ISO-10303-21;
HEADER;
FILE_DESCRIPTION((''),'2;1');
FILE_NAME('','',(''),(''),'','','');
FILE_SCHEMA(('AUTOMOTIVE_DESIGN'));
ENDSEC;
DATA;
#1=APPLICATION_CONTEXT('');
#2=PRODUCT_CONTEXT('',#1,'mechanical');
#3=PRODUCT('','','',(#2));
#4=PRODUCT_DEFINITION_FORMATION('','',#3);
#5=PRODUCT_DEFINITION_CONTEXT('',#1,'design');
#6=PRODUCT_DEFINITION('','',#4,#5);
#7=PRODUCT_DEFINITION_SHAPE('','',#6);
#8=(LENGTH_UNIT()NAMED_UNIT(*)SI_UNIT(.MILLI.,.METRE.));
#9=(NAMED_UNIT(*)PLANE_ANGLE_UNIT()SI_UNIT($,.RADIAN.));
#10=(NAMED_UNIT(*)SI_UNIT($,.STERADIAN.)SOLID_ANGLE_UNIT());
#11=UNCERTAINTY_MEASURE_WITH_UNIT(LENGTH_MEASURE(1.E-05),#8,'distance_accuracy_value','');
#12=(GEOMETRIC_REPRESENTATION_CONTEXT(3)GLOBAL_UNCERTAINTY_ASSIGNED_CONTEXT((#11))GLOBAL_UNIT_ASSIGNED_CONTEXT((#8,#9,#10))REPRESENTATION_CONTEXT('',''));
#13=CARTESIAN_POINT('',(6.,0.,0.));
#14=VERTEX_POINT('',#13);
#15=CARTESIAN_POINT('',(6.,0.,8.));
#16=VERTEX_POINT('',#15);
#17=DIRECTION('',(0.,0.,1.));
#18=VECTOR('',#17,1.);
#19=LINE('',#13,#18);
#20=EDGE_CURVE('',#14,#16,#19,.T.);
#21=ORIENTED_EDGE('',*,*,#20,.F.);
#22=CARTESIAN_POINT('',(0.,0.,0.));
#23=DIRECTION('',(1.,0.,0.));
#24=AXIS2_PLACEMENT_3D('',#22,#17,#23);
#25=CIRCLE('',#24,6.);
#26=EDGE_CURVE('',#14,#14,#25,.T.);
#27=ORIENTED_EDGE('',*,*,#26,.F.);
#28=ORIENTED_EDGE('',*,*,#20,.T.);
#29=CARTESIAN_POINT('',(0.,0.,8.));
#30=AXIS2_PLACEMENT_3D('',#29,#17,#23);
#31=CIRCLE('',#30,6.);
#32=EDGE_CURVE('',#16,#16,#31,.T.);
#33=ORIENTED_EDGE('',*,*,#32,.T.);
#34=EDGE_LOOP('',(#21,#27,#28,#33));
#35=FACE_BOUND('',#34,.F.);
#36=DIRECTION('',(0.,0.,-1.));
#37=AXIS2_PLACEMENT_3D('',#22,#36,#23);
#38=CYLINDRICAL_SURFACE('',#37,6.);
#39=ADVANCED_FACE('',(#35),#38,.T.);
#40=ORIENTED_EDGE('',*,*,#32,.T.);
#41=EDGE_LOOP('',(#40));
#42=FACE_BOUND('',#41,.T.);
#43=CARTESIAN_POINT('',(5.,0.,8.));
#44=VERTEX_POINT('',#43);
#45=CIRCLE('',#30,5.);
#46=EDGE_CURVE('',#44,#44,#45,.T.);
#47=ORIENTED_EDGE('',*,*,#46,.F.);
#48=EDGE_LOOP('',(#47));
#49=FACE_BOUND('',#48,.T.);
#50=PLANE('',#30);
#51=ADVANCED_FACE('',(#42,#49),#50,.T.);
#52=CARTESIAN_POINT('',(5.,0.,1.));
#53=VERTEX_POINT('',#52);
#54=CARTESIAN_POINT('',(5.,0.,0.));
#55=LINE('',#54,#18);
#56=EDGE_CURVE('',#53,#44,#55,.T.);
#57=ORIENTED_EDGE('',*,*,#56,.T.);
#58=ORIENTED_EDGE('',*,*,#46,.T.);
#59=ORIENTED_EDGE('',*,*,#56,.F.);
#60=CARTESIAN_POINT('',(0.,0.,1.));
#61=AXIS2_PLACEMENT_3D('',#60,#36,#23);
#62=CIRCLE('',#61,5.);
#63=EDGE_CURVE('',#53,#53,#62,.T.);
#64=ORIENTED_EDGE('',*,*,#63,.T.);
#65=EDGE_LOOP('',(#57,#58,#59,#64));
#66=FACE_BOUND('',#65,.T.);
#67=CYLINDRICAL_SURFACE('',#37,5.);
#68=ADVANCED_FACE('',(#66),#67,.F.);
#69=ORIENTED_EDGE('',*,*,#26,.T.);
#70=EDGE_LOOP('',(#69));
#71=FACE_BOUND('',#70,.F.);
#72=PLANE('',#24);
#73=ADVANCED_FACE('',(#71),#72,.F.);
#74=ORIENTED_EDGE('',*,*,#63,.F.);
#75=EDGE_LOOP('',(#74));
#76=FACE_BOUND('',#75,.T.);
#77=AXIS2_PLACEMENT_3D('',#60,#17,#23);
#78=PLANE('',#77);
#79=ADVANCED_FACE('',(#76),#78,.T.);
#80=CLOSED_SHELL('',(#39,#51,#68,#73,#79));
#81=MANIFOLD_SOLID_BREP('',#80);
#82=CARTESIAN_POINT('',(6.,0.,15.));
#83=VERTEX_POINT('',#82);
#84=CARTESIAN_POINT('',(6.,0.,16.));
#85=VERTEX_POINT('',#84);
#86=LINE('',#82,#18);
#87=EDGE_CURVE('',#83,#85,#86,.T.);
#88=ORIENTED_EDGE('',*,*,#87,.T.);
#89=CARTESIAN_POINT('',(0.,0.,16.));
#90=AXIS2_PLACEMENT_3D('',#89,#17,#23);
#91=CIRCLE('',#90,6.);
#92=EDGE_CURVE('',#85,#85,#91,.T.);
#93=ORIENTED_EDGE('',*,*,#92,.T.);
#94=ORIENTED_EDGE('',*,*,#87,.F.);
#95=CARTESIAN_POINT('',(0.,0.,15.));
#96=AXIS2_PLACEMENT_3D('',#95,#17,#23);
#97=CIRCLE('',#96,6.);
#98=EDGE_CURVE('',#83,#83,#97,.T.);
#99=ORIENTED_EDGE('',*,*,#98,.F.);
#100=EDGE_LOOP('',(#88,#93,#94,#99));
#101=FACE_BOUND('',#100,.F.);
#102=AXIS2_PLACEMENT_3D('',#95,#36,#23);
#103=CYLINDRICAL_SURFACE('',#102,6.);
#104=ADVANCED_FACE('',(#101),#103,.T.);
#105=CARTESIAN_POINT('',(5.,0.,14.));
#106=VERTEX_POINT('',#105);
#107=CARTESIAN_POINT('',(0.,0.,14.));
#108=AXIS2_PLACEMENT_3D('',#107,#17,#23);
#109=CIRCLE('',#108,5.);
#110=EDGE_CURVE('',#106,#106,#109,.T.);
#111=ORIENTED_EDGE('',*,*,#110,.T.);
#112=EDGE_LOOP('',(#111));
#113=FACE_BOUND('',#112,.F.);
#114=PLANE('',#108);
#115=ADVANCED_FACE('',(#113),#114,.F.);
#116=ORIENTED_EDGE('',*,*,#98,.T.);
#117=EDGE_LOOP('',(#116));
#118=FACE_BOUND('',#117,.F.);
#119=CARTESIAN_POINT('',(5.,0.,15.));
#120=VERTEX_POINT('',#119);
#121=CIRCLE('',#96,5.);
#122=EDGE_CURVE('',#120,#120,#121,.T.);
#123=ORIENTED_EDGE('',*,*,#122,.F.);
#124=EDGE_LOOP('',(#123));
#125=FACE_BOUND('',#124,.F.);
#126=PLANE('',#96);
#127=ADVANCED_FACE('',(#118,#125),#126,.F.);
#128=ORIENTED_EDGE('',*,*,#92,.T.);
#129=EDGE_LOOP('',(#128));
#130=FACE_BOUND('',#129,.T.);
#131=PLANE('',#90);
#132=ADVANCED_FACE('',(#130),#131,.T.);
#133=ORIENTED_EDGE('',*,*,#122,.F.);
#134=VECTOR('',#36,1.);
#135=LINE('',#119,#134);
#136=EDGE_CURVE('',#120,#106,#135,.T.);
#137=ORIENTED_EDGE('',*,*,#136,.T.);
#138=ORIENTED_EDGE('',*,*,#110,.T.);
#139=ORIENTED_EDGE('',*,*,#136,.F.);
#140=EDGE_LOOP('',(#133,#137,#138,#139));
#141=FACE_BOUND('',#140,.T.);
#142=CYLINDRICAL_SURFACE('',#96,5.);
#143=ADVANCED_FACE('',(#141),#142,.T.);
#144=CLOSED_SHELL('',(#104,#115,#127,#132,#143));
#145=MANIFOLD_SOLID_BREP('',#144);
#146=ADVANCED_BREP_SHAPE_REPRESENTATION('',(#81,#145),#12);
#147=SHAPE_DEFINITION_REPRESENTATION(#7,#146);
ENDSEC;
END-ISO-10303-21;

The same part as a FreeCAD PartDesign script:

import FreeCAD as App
import Part
import Sketcher
from FreeCAD import Vector


def faces_at(feature, points):
    """Names of the faces that lie closest to the given points."""
    faces = feature.Shape.Faces
    near = lambda p: min(range(len(faces)), key=lambda i: faces[i].distToShape(Part.Vertex(*p))[0])
    return sorted({f"Face{near(p) + 1}" for p in points})

doc = App.newDocument("Part")
body = doc.addObject("PartDesign::Body", "Body")

# Sketch on XY plane
sketch1 = body.newObject("Sketcher::SketchObject", "Sketch")
sketch1.AttachmentSupport = (doc.getObject("XY_Plane"), [""])
sketch1.MapMode = "FlatFace"
sketch1.addGeometry(Part.Circle(Vector(0, 0, 0), Vector(0, 0, 1), 6), False)
sketch1.addConstraint([
    Sketcher.Constraint("Coincident", 0, 3, -1, 1),
    Sketcher.Constraint("Diameter", 0, 12.0),
])
pad1 = body.newObject("PartDesign::Pad", "Pad")
pad1.Profile = sketch1
pad1.Length = 8
doc.recompute()

thickness = body.newObject("PartDesign::Thickness", "Thickness")
thickness.Base = (pad1, faces_at(pad1, [(0, 0, 8)]))
thickness.Value = 1
thickness.Reversed = True
thickness.Join = "Arc"
body2 = doc.addObject("PartDesign::Body", "Body001")

# Sketch on XY plane
sketch2 = body2.newObject("Sketcher::SketchObject", "Sketch001")
sketch2.AttachmentSupport = (doc.getObject("XY_Plane001"), [""])
sketch2.MapMode = "FlatFace"
sketch2.AttachmentOffset = App.Placement(Vector(0, 0, 15), App.Rotation())
sketch2.addGeometry(Part.Circle(Vector(0, 0, 0), Vector(0, 0, 1), 5), False)
sketch2.addConstraint([
    Sketcher.Constraint("Coincident", 0, 3, -1, 1),
    Sketcher.Constraint("Diameter", 0, 10.0),
])
pad2 = body2.newObject("PartDesign::Pad", "Pad001")
pad2.Profile = sketch2
pad2.Length = 1
pad2.Reversed = True

# Sketch on XY plane
sketch3 = body2.newObject("Sketcher::SketchObject", "Sketch002")
sketch3.AttachmentSupport = (doc.getObject("XY_Plane001"), [""])
sketch3.MapMode = "FlatFace"
sketch3.AttachmentOffset = App.Placement(Vector(0, 0, 15), App.Rotation())
sketch3.addGeometry(Part.Circle(Vector(0, 0, 0), Vector(0, 0, 1), 6), False)
sketch3.addConstraint([
    Sketcher.Constraint("Coincident", 0, 3, -1, 1),
    Sketcher.Constraint("Diameter", 0, 12.0),
])
pad3 = body2.newObject("PartDesign::Pad", "Pad002")
pad3.Profile = sketch3
pad3.Length = 1

doc.recompute()
